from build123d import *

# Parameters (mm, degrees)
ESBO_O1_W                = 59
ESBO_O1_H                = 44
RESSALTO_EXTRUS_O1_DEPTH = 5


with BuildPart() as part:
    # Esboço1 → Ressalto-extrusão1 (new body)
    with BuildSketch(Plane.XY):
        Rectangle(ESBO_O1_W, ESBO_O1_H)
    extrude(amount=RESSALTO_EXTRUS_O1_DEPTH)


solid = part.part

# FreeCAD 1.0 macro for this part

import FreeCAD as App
import Part
import Sketcher

V = App.Vector


def add_polygon(sketch, points):
    """Adds a closed chain of lines whose ends are joined by coincident constraints."""
    first, n = sketch.GeometryCount, len(points)
    for a, b in zip(points, points[1:] + points[:1]):
        sketch.addGeometry(Part.LineSegment(App.Vector(*a, 0), App.Vector(*b, 0)), False)
    for i in range(n):
        sketch.addConstraint(Sketcher.Constraint("Coincident", first + i, 2, first + (i + 1) % n, 1))

doc = App.newDocument("Part")
body = doc.addObject("PartDesign::Body", "Body")

sketch1 = body.newObject("Sketcher::SketchObject", "Sketch")
sketch1.AttachmentSupport = (doc.getObject("XY_Plane"), [""])
sketch1.MapMode = "FlatFace"
add_polygon(sketch1, [(-29.5, 22), (-29.5, -22), (29.5, -22), (29.5, 22)])
sketch1.addConstraint([
    Sketcher.Constraint("Vertical", 0),
    Sketcher.Constraint("Horizontal", 1),
    Sketcher.Constraint("Vertical", 2),
    Sketcher.Constraint("Horizontal", 3),
    Sketcher.Constraint("Symmetric", 0, 2, 2, 2, -1, 1),
    Sketcher.Constraint("DistanceX", 1, 1, 1, 2, 59.0),
    Sketcher.Constraint("DistanceY", 0, 2, 0, 1, 44.0),
])
pad1 = body.newObject("PartDesign::Pad", "Pad")
pad1.Profile = sketch1
pad1.Length = 5

doc.recompute()
